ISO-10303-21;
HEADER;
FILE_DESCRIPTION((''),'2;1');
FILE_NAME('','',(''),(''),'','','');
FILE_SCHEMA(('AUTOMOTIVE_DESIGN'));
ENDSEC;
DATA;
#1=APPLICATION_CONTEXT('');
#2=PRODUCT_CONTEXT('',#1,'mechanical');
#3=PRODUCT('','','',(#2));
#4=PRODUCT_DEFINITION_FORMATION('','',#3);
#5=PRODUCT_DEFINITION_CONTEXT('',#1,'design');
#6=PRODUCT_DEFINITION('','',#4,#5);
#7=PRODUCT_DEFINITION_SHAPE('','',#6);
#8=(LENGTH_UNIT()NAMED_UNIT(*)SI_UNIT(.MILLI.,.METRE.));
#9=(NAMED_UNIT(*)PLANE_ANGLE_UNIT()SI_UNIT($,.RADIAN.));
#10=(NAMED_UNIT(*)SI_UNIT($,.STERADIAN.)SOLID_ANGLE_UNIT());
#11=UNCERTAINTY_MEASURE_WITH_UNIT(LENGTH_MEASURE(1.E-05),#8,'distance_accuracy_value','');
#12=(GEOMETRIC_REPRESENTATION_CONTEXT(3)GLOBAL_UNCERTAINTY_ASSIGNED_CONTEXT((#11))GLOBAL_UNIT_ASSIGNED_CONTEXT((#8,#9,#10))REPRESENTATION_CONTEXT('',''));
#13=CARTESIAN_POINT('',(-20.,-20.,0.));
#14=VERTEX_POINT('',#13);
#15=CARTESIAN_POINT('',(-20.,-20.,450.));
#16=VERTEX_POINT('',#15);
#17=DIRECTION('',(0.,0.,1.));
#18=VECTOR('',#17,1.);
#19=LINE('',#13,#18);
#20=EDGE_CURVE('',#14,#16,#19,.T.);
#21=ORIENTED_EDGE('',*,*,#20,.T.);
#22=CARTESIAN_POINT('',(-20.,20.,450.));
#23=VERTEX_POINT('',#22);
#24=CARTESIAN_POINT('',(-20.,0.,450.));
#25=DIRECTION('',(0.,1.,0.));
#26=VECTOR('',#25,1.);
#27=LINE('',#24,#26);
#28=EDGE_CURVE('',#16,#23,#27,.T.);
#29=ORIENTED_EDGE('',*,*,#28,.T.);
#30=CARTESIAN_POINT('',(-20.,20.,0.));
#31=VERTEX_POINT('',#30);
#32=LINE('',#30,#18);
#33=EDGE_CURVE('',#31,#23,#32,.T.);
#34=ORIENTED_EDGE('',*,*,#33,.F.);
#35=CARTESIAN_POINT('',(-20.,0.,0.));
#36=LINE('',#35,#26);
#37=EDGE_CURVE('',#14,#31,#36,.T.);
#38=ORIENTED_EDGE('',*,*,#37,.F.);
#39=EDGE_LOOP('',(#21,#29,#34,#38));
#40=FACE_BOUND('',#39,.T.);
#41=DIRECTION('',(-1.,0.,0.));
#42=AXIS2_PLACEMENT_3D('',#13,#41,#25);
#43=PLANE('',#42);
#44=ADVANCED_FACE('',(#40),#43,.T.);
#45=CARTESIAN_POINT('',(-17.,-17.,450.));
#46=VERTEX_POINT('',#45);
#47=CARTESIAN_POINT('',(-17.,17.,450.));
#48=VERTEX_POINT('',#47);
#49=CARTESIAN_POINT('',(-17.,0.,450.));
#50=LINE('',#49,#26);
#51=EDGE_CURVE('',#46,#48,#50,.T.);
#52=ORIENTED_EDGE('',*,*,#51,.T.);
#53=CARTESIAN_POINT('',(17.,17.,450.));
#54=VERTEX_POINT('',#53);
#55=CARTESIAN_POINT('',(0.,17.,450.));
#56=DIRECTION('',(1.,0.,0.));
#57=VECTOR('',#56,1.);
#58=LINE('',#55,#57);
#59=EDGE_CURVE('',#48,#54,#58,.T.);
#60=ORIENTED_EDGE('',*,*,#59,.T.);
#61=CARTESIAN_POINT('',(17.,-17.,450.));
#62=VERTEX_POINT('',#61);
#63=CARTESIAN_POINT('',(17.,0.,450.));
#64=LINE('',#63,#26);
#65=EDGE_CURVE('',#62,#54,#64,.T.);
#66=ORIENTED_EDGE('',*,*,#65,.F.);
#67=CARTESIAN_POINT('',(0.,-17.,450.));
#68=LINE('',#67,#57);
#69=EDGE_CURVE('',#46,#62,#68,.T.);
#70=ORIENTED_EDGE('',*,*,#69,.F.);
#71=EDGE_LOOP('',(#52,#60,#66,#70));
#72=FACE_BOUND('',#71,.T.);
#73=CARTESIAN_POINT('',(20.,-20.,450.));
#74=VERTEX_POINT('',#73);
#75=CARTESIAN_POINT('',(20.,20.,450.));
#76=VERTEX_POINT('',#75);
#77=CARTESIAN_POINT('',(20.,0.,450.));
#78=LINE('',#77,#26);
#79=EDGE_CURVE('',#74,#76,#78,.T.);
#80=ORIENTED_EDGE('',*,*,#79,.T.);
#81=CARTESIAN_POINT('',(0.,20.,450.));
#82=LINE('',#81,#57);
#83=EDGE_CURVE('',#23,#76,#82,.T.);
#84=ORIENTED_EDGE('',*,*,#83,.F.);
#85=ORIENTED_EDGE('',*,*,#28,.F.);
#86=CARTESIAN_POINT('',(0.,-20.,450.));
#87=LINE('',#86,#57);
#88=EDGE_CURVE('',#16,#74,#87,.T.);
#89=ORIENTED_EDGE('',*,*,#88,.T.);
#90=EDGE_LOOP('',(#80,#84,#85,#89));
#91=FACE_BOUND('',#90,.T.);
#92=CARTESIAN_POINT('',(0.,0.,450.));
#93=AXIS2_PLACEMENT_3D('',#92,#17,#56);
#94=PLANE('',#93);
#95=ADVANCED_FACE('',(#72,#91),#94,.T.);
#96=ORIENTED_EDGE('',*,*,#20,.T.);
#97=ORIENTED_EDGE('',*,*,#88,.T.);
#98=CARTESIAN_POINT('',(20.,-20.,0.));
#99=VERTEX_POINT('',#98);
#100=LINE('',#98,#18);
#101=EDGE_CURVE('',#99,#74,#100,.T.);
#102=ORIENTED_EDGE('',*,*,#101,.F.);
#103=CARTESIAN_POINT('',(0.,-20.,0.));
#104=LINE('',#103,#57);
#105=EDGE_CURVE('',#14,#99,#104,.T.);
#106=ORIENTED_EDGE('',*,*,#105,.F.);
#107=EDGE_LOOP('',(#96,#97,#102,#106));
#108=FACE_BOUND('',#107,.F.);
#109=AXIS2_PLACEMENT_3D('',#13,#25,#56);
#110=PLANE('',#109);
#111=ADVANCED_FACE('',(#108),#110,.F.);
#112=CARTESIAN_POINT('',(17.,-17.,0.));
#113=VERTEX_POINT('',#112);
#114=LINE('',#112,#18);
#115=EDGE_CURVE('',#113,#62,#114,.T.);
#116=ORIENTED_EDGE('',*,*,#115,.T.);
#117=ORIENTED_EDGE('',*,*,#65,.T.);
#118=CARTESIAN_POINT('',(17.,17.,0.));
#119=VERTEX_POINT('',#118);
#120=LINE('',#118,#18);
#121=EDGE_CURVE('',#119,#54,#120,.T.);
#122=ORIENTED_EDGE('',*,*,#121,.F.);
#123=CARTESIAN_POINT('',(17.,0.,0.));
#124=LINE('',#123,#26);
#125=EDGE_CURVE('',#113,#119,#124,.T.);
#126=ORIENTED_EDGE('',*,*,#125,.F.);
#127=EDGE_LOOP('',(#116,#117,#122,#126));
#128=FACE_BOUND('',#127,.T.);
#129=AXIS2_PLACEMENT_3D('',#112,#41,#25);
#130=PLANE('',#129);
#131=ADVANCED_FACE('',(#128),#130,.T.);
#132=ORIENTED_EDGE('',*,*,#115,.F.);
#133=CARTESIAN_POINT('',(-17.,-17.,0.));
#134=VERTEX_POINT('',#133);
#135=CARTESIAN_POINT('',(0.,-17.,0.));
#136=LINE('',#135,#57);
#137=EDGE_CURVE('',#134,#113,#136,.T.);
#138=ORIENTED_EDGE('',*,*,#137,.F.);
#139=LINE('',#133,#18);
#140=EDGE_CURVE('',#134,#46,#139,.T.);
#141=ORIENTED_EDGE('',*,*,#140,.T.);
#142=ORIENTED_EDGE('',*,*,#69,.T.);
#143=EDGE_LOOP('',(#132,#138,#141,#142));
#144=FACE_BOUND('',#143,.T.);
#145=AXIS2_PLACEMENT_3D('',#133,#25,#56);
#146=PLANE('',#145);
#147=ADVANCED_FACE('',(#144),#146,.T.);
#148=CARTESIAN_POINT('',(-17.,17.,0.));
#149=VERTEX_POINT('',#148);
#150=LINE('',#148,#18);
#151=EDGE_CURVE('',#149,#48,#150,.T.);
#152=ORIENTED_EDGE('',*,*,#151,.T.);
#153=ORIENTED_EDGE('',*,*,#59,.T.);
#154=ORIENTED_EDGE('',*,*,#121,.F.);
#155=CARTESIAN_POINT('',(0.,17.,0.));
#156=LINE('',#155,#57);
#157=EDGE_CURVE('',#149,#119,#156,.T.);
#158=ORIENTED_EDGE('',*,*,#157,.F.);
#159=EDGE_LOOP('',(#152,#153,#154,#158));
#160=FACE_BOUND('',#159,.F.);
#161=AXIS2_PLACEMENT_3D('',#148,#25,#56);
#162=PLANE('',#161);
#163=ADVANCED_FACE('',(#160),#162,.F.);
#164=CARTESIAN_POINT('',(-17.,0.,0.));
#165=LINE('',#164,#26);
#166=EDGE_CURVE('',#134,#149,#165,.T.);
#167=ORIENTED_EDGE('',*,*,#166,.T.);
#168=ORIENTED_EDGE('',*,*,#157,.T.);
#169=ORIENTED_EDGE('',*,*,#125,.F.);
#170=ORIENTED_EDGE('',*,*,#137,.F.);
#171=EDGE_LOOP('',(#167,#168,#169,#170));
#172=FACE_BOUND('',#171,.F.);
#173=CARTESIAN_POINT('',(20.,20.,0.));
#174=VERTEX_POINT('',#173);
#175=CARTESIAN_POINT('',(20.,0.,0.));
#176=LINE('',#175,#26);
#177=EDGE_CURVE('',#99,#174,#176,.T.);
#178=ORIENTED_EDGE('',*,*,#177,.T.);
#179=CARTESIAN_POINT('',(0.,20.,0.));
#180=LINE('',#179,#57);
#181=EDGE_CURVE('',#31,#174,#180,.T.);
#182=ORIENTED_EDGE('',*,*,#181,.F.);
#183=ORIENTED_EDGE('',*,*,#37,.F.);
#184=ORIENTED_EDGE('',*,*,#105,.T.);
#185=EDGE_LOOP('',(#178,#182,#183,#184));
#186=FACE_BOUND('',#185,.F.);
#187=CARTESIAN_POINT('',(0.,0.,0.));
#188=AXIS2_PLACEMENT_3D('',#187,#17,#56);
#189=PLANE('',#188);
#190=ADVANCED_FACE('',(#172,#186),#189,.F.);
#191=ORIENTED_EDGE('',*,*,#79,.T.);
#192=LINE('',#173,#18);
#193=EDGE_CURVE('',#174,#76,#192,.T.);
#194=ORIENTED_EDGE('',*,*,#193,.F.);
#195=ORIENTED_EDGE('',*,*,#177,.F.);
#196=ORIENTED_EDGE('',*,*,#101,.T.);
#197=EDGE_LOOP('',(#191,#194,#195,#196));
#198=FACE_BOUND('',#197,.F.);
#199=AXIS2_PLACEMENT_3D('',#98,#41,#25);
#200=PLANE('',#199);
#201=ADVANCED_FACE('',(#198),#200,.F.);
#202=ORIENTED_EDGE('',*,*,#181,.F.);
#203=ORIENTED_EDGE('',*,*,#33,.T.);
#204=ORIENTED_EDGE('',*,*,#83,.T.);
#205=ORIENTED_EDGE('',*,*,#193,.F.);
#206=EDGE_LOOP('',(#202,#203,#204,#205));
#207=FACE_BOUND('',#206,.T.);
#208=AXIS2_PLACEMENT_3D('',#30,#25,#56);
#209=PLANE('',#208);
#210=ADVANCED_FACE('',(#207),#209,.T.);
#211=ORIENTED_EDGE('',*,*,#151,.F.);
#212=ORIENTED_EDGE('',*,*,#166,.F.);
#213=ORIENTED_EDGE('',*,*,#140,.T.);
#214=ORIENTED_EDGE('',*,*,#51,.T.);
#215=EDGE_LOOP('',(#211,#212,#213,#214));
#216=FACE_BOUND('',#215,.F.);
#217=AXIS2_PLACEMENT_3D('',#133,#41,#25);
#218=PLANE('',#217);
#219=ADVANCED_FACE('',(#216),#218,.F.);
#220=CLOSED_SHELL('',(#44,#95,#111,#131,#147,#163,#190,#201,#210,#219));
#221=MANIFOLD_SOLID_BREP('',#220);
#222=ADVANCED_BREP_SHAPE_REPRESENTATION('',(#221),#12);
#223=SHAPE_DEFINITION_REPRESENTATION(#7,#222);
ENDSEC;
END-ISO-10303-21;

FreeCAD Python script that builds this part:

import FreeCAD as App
import Part
import Sketcher
Q = App.Units.Quantity

doc = App.newDocument("Part")
body = doc.addObject("PartDesign::Body", "Body")

sketch1 = doc.addObject("Sketcher::SketchObject", "Sketch")
body.addObject(sketch1)
sketch1.AttachmentSupport = (doc.XY_Plane, [""])
sketch1.MapMode = "FlatFace"
sketch1.addGeometry(Part.LineSegment(App.Vector(-20, 20, 0), App.Vector(-20, -20, 0)), False)
sketch1.addGeometry(Part.LineSegment(App.Vector(-20, -20, 0), App.Vector(20, -20, 0)), False)
sketch1.addGeometry(Part.LineSegment(App.Vector(20, -20, 0), App.Vector(20, 20, 0)), False)
sketch1.addGeometry(Part.LineSegment(App.Vector(20, 20, 0), App.Vector(-20, 20, 0)), False)
sketch1.addGeometry(Part.LineSegment(App.Vector(17, -17, 0), App.Vector(-17, -17, 0)), False)
sketch1.addGeometry(Part.LineSegment(App.Vector(-17, -17, 0), App.Vector(-17, 17, 0)), False)
sketch1.addGeometry(Part.LineSegment(App.Vector(-17, 17, 0), App.Vector(17, 17, 0)), False)
sketch1.addGeometry(Part.LineSegment(App.Vector(17, 17, 0), App.Vector(17, -17, 0)), False)
sketch1.addConstraint(Sketcher.Constraint("Coincident", 0, 2, 1, 1))
sketch1.addConstraint(Sketcher.Constraint("Coincident", 1, 2, 2, 1))
sketch1.addConstraint(Sketcher.Constraint("Coincident", 2, 2, 3, 1))
sketch1.addConstraint(Sketcher.Constraint("Coincident", 3, 2, 0, 1))
sketch1.addConstraint(Sketcher.Constraint("Coincident", 4, 2, 5, 1))
sketch1.addConstraint(Sketcher.Constraint("Coincident", 5, 2, 6, 1))
sketch1.addConstraint(Sketcher.Constraint("Coincident", 6, 2, 7, 1))
sketch1.addConstraint(Sketcher.Constraint("Coincident", 7, 2, 4, 1))
sketch1.addConstraint(Sketcher.Constraint("Vertical", 0))
sketch1.addConstraint(Sketcher.Constraint("Horizontal", 1))
sketch1.addConstraint(Sketcher.Constraint("Vertical", 2))
sketch1.addConstraint(Sketcher.Constraint("Horizontal", 3))
sketch1.addConstraint(Sketcher.Constraint("Horizontal", 4))
sketch1.addConstraint(Sketcher.Constraint("Vertical", 5))
sketch1.addConstraint(Sketcher.Constraint("Horizontal", 6))
sketch1.addConstraint(Sketcher.Constraint("Vertical", 7))
sketch1.addConstraint(Sketcher.Constraint("Symmetric", 0, 2, 2, 2, -1, 1))
sketch1.addConstraint(Sketcher.Constraint("Symmetric", 4, 2, 6, 2, -1, 1))
sketch1.addConstraint(Sketcher.Constraint("Equal", 3, 0))
sketch1.addConstraint(Sketcher.Constraint("Equal", 6, 5))
sketch1.addConstraint(Sketcher.Constraint("DistanceX", 1, 1, 1, 2, Q("40 mm")))
sketch1.addConstraint(Sketcher.Constraint("DistanceX", 4, 2, 4, 1, Q("34 mm")))
pad1 = doc.addObject("PartDesign::Pad", "Pad")
body.addObject(pad1)
pad1.Profile = sketch1
pad1.Length = 450

doc.recompute()
